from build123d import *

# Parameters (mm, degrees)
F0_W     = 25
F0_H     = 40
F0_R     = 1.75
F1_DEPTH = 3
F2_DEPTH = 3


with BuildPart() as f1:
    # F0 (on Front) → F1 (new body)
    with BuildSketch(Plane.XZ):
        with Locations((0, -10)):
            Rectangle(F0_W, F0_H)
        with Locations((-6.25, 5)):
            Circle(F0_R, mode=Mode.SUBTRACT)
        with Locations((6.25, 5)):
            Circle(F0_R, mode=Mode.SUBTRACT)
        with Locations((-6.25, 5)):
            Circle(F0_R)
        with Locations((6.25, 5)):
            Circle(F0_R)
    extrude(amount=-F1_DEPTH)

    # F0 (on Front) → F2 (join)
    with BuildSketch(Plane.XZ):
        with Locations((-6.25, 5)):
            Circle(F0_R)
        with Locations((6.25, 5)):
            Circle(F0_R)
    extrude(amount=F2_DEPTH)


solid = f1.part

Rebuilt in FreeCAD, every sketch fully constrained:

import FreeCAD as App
import Part
import Sketcher

doc = App.newDocument("Part")
params = doc.addObject("Spreadsheet::Sheet", "Params")
for row, (alias, value) in enumerate([
    ("sketch1_width", "25 mm"),
    ("sketch1_height", "40 mm"),
    ("pad1_length", "3 mm"),
    ("sketch2_diameter", "3.5 mm"),
    ("pad2_length", "3 mm"),
], start=1):
    params.set(f"A{row}", alias)
    params.set(f"B{row}", "=" + value)
    params.setAlias(f"B{row}", alias)

body = doc.addObject("PartDesign::Body", "Body")

sketch1 = body.newObject("Sketcher::SketchObject", "Sketch")
sketch1.AttachmentSupport = (doc.getObject("XZ_Plane"), [""])
sketch1.MapMode = "FlatFace"
sketch1.addGeometry([
    Part.LineSegment(App.Vector(-12.5, 10, 0), App.Vector(-12.5, -30, 0)),
    Part.LineSegment(App.Vector(-12.5, -30, 0), App.Vector(12.5, -30, 0)),
    Part.LineSegment(App.Vector(12.5, -30, 0), App.Vector(12.5, 10, 0)),
    Part.LineSegment(App.Vector(12.5, 10, 0), App.Vector(-12.5, 10, 0)),
], False)
sketch1.addConstraint([
    Sketcher.Constraint("Coincident", 0, 2, 1, 1),
    Sketcher.Constraint("Coincident", 1, 2, 2, 1),
    Sketcher.Constraint("Coincident", 2, 2, 3, 1),
    Sketcher.Constraint("Coincident", 3, 2, 0, 1),
    Sketcher.Constraint("Vertical", 0),
    Sketcher.Constraint("Horizontal", 1),
    Sketcher.Constraint("Vertical", 2),
    Sketcher.Constraint("Horizontal", 3),
    Sketcher.Constraint("DistanceX", 1, 1, 1, 2, 25.0),
    Sketcher.Constraint("DistanceY", 0, 2, 0, 1, 40.0),
    Sketcher.Constraint("DistanceY", 0, 2, -1, 1, 30.0),
    Sketcher.Constraint("DistanceX", 0, 2, -1, 1, 12.5),
])
sketch1.setExpression("Constraints[8]", "Params.sketch1_width")
sketch1.setExpression("Constraints[9]", "Params.sketch1_height")
pad1 = body.newObject("PartDesign::Pad", "Pad")
pad1.Profile = sketch1
pad1.setExpression("Length", "Params.pad1_length")
pad1.Reversed = True

sketch2 = body.newObject("Sketcher::SketchObject", "Sketch001")
sketch2.AttachmentSupport = (doc.getObject("XZ_Plane"), [""])
sketch2.MapMode = "FlatFace"
sketch2.addGeometry([
    Part.Circle(App.Vector(-6.25, 5, 0), App.Vector(0, 0, 1), 1.75),
    Part.Circle(App.Vector(6.25, 5, 0), App.Vector(0, 0, 1), 1.75),
], False)
sketch2.addConstraint([
    Sketcher.Constraint("Equal", 0, 1),
    Sketcher.Constraint("Symmetric", 0, 3, 1, 3, -2),
    Sketcher.Constraint("Diameter", 0, 3.5),
    Sketcher.Constraint("DistanceY", -1, 1, 0, 3, 5.0),
    Sketcher.Constraint("DistanceX", 0, 3, 1, 3, 12.5),
])
sketch2.setExpression("Constraints[2]", "Params.sketch2_diameter")
pad2 = body.newObject("PartDesign::Pad", "Pad001")
pad2.Profile = sketch2
pad2.setExpression("Length", "Params.pad2_length")

doc.recompute()
